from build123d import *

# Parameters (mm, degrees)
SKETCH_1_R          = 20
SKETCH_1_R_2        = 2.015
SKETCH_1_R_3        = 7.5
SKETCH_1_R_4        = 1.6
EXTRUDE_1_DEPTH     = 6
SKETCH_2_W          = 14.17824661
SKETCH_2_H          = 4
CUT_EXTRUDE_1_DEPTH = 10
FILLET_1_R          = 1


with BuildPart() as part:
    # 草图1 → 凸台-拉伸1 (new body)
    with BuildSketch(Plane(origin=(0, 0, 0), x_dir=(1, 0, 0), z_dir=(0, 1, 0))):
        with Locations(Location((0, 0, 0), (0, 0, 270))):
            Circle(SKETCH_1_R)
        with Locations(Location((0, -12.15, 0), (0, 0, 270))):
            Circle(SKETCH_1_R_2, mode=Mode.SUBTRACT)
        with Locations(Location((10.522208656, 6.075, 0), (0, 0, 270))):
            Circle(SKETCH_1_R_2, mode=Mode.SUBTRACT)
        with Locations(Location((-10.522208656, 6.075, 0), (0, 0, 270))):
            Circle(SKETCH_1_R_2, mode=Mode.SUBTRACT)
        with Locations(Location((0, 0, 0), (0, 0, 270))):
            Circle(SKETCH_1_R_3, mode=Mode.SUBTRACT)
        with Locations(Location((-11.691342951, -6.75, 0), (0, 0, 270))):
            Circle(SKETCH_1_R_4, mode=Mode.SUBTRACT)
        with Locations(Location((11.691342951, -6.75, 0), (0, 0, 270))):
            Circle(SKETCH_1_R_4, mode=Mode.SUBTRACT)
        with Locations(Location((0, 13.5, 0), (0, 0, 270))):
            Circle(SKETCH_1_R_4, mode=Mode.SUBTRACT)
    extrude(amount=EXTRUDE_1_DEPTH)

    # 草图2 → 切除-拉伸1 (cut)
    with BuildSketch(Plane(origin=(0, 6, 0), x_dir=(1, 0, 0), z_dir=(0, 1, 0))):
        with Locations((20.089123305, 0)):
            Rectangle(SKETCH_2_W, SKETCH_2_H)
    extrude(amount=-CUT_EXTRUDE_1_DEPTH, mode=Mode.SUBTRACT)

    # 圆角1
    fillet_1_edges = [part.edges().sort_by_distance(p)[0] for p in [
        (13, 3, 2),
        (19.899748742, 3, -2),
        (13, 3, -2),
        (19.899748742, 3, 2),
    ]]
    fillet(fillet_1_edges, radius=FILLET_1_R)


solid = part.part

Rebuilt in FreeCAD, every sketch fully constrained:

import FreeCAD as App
import Part
import Sketcher


def edges_at(feature, points):
    """Names of the edges that pass closest to the given points."""
    edges = feature.Shape.Edges
    near = lambda p: min(range(len(edges)), key=lambda i: edges[i].distToShape(Part.Vertex(*p))[0])
    return sorted({f"Edge{near(p) + 1}" for p in points})

doc = App.newDocument("Part")
body = doc.addObject("PartDesign::Body", "Body")

# Sketch on XZ plane
sketch1 = body.newObject("Sketcher::SketchObject", "Sketch")
sketch1.AttachmentSupport = (doc.getObject("XZ_Plane"), [""])
sketch1.MapMode = "FlatFace"
sketch1.addGeometry([
    Part.Circle(App.Vector(0, 0, 0), App.Vector(0, 0, 1), 20),  # 0
    Part.Circle(App.Vector(-10.5, -6.1, 0), App.Vector(0, 0, 1), 2),  # 1
    Part.Circle(App.Vector(0, -13.5, 0), App.Vector(0, 0, 1), 1.6),  # 2
    Part.Circle(App.Vector(-11.7, 6.8, 0), App.Vector(0, 0, 1), 1.6),  # 3
    Part.Circle(App.Vector(0, 0, 0), App.Vector(0, 0, 1), 7.5),  # 4
    Part.Circle(App.Vector(10.5, -6.1, 0), App.Vector(0, 0, 1), 2),  # 5
    Part.Circle(App.Vector(0, 12.2, 0), App.Vector(0, 0, 1), 2),  # 6
    Part.Circle(App.Vector(11.7, 6.8, 0), App.Vector(0, 0, 1), 1.6),  # 7
], False)
sketch1.addConstraint([
    Sketcher.Constraint("Coincident", 0, 3, -1, 1),
    Sketcher.Constraint("Coincident", 4, 3, -1, 1),
    Sketcher.Constraint("Equal", 2, 3),
    Sketcher.Constraint("Equal", 1, 5),
    Sketcher.Constraint("Equal", 5, 6),
    Sketcher.Constraint("Equal", 3, 7),
    Sketcher.Constraint("Symmetric", 1, 3, 5, 3, -2),
    Sketcher.Constraint("Symmetric", 3, 3, 7, 3, -2),
    Sketcher.Constraint("PointOnObject", 2, 3, -2),
    Sketcher.Constraint("PointOnObject", 6, 3, -2),
    Sketcher.Constraint("Diameter", 0, 40.0),
    Sketcher.Constraint("Diameter", 4, 15.0),
    Sketcher.Constraint("Diameter", 2, 3.2),
    Sketcher.Constraint("Diameter", 1, 4.03),
    Sketcher.Constraint("DistanceY", 2, 3, -1, 1, 13.5),
    Sketcher.Constraint("DistanceY", 3, 3, 6, 3, 5.4),
    Sketcher.Constraint("DistanceY", -1, 1, 3, 3, 6.75),
    Sketcher.Constraint("DistanceY", 1, 3, -1, 1, 6.075),
    Sketcher.Constraint("DistanceX", 1, 3, -1, 1, 10.522209),
    Sketcher.Constraint("DistanceX", 3, 3, 5, 3, 22.213552),
])
pad1 = body.newObject("PartDesign::Pad", "Pad")
pad1.Profile = sketch1
pad1.Length = 6
pad1.Reversed = True

# Sketch on XZ plane
sketch2 = body.newObject("Sketcher::SketchObject", "Sketch001")
sketch2.AttachmentSupport = (doc.getObject("XZ_Plane"), [""])
sketch2.MapMode = "FlatFace"
sketch2.AttachmentOffset = App.Placement(App.Vector(0, 0, -6), App.Rotation())
sketch2.addGeometry([
    Part.LineSegment(App.Vector(13, -2, 0), App.Vector(13, 2, 0)),
    Part.LineSegment(App.Vector(13, 2, 0), App.Vector(27.2, 2, 0)),
    Part.LineSegment(App.Vector(27.2, 2, 0), App.Vector(27.2, -2, 0)),
    Part.LineSegment(App.Vector(27.2, -2, 0), App.Vector(13, -2, 0)),
], False)
sketch2.addConstraint([
    Sketcher.Constraint("Coincident", 0, 2, 1, 1),
    Sketcher.Constraint("Coincident", 1, 2, 2, 1),
    Sketcher.Constraint("Coincident", 2, 2, 3, 1),
    Sketcher.Constraint("Coincident", 3, 2, 0, 1),
    Sketcher.Constraint("Vertical", 0),
    Sketcher.Constraint("Horizontal", 1),
    Sketcher.Constraint("Vertical", 2),
    Sketcher.Constraint("Horizontal", 3),
    Sketcher.Constraint("DistanceY", 0, 1, 0, 2, 4.0),
    Sketcher.Constraint("DistanceX", -1, 1, 0, 2, 13.0),
    Sketcher.Constraint("DistanceY", -1, 1, 0, 2, 2.0),
    Sketcher.Constraint("DistanceX", 1, 1, 1, 2, 14.178247),
])
pocket1 = body.newObject("PartDesign::Pocket", "Pocket")
pocket1.Profile = sketch2
pocket1.Length = 10
pocket1.Reversed = True
doc.recompute()

fillet = body.newObject("PartDesign::Fillet", "Fillet")
fillet.Base = (pocket1, edges_at(pocket1, [
    (13, 3, 2),
    (19.9, 3, -2),
    (13, 3, -2),
    (19.9, 3, 2),
]))
fillet.Radius = 1

doc.recompute()
